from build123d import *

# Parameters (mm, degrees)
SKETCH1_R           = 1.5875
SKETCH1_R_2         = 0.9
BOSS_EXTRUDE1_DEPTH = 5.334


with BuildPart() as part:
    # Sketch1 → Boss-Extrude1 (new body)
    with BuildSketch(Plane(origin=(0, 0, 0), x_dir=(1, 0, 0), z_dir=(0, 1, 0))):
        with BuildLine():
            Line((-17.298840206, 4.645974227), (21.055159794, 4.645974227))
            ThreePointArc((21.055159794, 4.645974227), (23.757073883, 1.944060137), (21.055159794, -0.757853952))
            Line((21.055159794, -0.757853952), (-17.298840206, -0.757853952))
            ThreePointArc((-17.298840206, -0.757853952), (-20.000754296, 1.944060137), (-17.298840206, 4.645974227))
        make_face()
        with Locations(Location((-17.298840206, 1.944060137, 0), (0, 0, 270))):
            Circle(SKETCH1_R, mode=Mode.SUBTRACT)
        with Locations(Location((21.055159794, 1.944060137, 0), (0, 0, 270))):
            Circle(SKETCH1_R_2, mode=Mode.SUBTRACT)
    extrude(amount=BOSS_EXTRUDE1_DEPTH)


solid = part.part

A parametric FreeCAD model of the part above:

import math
import FreeCAD as App
import Part
import Sketcher
from FreeCAD import Vector
Q = App.Units.Quantity

doc = App.newDocument("Part")
body = doc.addObject("PartDesign::Body", "Body")

# Sketch on XZ plane
sketch1 = body.newObject("Sketcher::SketchObject", "Sketch")
sketch1.AttachmentSupport = (doc.getObject("XZ_Plane"), [""])
sketch1.MapMode = "FlatFace"
sketch1.addGeometry([
    Part.LineSegment(Vector(21.1, -4.6, 0), Vector(-17.3, -4.6, 0)),  # 0
    Part.ArcOfCircle(Part.Circle(Vector(-17.3, -1.9, 0), Vector(0, 0, 1), 2.7), math.radians(90), math.radians(270)),  # 1
    Part.LineSegment(Vector(-17.3, 0.8, 0), Vector(21.1, 0.8, 0)),  # 2
    Part.ArcOfCircle(Part.Circle(Vector(21.1, -1.9, 0), Vector(0, 0, 1), 2.7), math.radians(-90), math.radians(90)),  # 3
    Part.Circle(Vector(21.1, -1.9, 0), Vector(0, 0, 1), 0.9),  # 4
    Part.Circle(Vector(-17.3, -1.9, 0), Vector(0, 0, 1), 1.6),  # 5
], False)
sketch1.addConstraint([
    Sketcher.Constraint("Tangent", 0, 2, 1, 2),
    Sketcher.Constraint("Tangent", 1, 1, 2, 1),
    Sketcher.Constraint("Tangent", 2, 2, 3, 2),
    Sketcher.Constraint("Tangent", 3, 1, 0, 1),
    Sketcher.Constraint("Horizontal", 0),
    Sketcher.Constraint("Horizontal", 2),
    Sketcher.Constraint("Coincident", 4, 3, 3, 3),
    Sketcher.Constraint("Coincident", 5, 3, 1, 3),
    Sketcher.Constraint("Diameter", 5, Q("0.125 in")),
    Sketcher.Constraint("DistanceX", 0, 2, 0, 1, Q("1.51 in")),
    Sketcher.Constraint("Diameter", 4, Q("1.8 mm")),
    Sketcher.Constraint("Radius", 1, Q("2.701914 mm")),
    Sketcher.Constraint("DistanceX", 1, 3, -1, 1, Q("17.29884 mm")),
    Sketcher.Constraint("DistanceY", 1, 3, -1, 1, Q("1.94406 mm")),
])
pad1 = body.newObject("PartDesign::Pad", "Pad")
pad1.Profile = sketch1
pad1.Length = Q("0.21 in")
pad1.Reversed = True

doc.recompute()
